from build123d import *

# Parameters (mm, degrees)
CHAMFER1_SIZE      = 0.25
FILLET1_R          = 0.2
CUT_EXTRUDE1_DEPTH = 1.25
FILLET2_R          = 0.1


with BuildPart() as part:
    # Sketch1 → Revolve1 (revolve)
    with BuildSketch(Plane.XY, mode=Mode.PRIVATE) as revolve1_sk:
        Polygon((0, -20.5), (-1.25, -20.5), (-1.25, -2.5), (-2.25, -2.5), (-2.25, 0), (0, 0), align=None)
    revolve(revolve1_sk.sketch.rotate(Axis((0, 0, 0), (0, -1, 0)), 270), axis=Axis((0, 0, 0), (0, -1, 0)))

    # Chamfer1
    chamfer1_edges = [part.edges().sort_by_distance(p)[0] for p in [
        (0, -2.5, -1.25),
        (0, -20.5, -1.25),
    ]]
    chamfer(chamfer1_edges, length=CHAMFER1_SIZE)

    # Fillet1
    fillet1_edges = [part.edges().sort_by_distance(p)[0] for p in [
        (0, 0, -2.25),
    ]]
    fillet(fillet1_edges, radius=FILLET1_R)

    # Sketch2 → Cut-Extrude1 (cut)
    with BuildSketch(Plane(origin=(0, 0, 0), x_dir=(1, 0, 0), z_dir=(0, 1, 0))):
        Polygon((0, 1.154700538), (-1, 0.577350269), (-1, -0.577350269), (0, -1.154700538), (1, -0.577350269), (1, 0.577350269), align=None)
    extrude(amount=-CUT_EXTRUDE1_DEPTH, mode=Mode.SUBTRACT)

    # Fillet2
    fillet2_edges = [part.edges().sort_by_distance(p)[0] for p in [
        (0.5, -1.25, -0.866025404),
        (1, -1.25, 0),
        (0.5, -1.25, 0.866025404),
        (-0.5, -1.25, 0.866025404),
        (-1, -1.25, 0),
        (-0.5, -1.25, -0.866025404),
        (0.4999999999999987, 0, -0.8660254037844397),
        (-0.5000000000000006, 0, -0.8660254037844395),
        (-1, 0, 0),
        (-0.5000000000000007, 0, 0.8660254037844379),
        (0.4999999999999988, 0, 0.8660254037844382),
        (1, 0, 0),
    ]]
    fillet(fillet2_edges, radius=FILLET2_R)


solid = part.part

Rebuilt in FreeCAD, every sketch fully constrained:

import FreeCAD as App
import Part
import Sketcher
from FreeCAD import Vector
Q = App.Units.Quantity


def edges_at(feature, points):
    """Names of the edges that pass closest to the given points."""
    edges = feature.Shape.Edges
    near = lambda p: min(range(len(edges)), key=lambda i: edges[i].distToShape(Part.Vertex(*p))[0])
    return sorted({f"Edge{near(p) + 1}" for p in points})

doc = App.newDocument("Part")
body = doc.addObject("PartDesign::Body", "Body")

# Sketch on XY plane
sketch1 = doc.addObject("Sketcher::SketchObject", "Sketch")
body.addObject(sketch1)
sketch1.AttachmentSupport = (doc.XY_Plane, [""])
sketch1.MapMode = "FlatFace"
sketch1.addGeometry([
    Part.LineSegment(Vector(-1.25, -20.5, 0), Vector(0, -20.5, 0)),  # 0
    Part.LineSegment(Vector(0, -20.5, 0), Vector(0, 0, 0)),  # 1
    Part.LineSegment(Vector(0, 0, 0), Vector(-2.25, 0, 0)),  # 2
    Part.LineSegment(Vector(-2.25, 0, 0), Vector(-2.25, -2.5, 0)),  # 3
    Part.LineSegment(Vector(-2.25, -2.5, 0), Vector(-1.25, -2.5, 0)),  # 4
    Part.LineSegment(Vector(-1.25, -2.5, 0), Vector(-1.25, -20.5, 0)),  # 5
], False)
sketch1.addConstraint([
    Sketcher.Constraint("Coincident", 0, 2, 1, 1),
    Sketcher.Constraint("Coincident", 1, 2, 2, 1),
    Sketcher.Constraint("Coincident", 2, 2, 3, 1),
    Sketcher.Constraint("Coincident", 3, 2, 4, 1),
    Sketcher.Constraint("Coincident", 4, 2, 5, 1),
    Sketcher.Constraint("Coincident", 5, 2, 0, 1),
    Sketcher.Constraint("Horizontal", 0),
    Sketcher.Constraint("Vertical", 1),
    Sketcher.Constraint("Horizontal", 2),
    Sketcher.Constraint("Vertical", 3),
    Sketcher.Constraint("Horizontal", 4),
    Sketcher.Constraint("Vertical", 5),
    Sketcher.Constraint("Coincident", 1, 2, -1, 1),
    Sketcher.Constraint("DistanceX", 4, 1, 4, 2, Q("1 mm")),
    Sketcher.Constraint("DistanceY", 5, 2, 5, 1, Q("18 mm")),
    Sketcher.Constraint("DistanceY", 1, 1, 1, 2, Q("20.5 mm")),
    Sketcher.Constraint("DistanceX", 0, 1, 0, 2, Q("1.25 mm")),
])
revolution = doc.addObject("PartDesign::Revolution", "Revolution")
body.addObject(revolution)
revolution.Profile = sketch1
revolution.ReferenceAxis = (sketch1, ["V_Axis"])
revolution.Angle = 360
doc.recompute()

chamfer = doc.addObject("PartDesign::Chamfer", "Chamfer")
body.addObject(chamfer)
chamfer.Base = (revolution, edges_at(revolution, [(0, -2.5, -1.25), (0, -20.5, -1.25)]))
chamfer.Size = 0.25
doc.recompute()

fillet = doc.addObject("PartDesign::Fillet", "Fillet")
body.addObject(fillet)
fillet.Base = (chamfer, edges_at(chamfer, [(0, 0, -2.25)]))
fillet.Radius = 0.2

# Sketch on XZ plane
sketch2 = doc.addObject("Sketcher::SketchObject", "Sketch001")
body.addObject(sketch2)
sketch2.AttachmentSupport = (doc.XZ_Plane, [""])
sketch2.MapMode = "FlatFace"
sketch2.addGeometry([
    Part.LineSegment(Vector(0, -1.154701, 0), Vector(-1, -0.57735, 0)),  # 0
    Part.LineSegment(Vector(-1, -0.57735, 0), Vector(-1, 0.57735, 0)),  # 1
    Part.LineSegment(Vector(-1, 0.57735, 0), Vector(0, 1.154701, 0)),  # 2
    Part.LineSegment(Vector(0, 1.154701, 0), Vector(1, 0.57735, 0)),  # 3
    Part.LineSegment(Vector(1, 0.57735, 0), Vector(1, -0.57735, 0)),  # 4
    Part.LineSegment(Vector(1, -0.57735, 0), Vector(0, -1.154701, 0)),  # 5
], False)
sketch2.addConstraint([
    Sketcher.Constraint("Coincident", 0, 2, 1, 1),
    Sketcher.Constraint("Coincident", 1, 2, 2, 1),
    Sketcher.Constraint("Coincident", 2, 2, 3, 1),
    Sketcher.Constraint("Coincident", 3, 2, 4, 1),
    Sketcher.Constraint("Coincident", 4, 2, 5, 1),
    Sketcher.Constraint("Coincident", 5, 2, 0, 1),
    Sketcher.Constraint("Vertical", 1),
    Sketcher.Constraint("Vertical", 4),
    Sketcher.Constraint("Symmetric", 0, 2, 3, 2, -1, 1),
    Sketcher.Constraint("Symmetric", 2, 2, 5, 2, -1, 1),
    Sketcher.Constraint("PointOnObject", 2, 2, -2),
    Sketcher.Constraint("Parallel", 2, 5),
    Sketcher.Constraint("Horizontal", 1, 2, 3, 2),
    Sketcher.Constraint("Angle", 0, Q("150 deg")),
    Sketcher.Constraint("DistanceX", 0, 2, -1, 1, Q("1 mm")),
    Sketcher.Constraint("DistanceY", 1, 1, 1, 2, Q("1.154701 mm")),
])
pocket1 = doc.addObject("PartDesign::Pocket", "Pocket")
body.addObject(pocket1)
pocket1.Profile = sketch2
pocket1.Length = 1.25
pocket1.Reversed = True
doc.recompute()

fillet2 = doc.addObject("PartDesign::Fillet", "Fillet001")
body.addObject(fillet2)
fillet2.Base = (pocket1, edges_at(pocket1, [
    (0.5, -1.25, -0.866),
    (1, -1.25, 0),
    (0.5, -1.25, 0.866),
    (-0.5, -1.25, 0.866),
    (-1, -1.25, 0),
    (-0.5, -1.25, -0.866),
    (0.5, 0, -0.866),
    (-0.5, 0, -0.866),
    (-1, 0, 0),
    (-0.5, 0, 0.866),
    (0.5, 0, 0.866),
    (1, 0, 0),
]))
fillet2.Radius = 0.1

doc.recompute()
